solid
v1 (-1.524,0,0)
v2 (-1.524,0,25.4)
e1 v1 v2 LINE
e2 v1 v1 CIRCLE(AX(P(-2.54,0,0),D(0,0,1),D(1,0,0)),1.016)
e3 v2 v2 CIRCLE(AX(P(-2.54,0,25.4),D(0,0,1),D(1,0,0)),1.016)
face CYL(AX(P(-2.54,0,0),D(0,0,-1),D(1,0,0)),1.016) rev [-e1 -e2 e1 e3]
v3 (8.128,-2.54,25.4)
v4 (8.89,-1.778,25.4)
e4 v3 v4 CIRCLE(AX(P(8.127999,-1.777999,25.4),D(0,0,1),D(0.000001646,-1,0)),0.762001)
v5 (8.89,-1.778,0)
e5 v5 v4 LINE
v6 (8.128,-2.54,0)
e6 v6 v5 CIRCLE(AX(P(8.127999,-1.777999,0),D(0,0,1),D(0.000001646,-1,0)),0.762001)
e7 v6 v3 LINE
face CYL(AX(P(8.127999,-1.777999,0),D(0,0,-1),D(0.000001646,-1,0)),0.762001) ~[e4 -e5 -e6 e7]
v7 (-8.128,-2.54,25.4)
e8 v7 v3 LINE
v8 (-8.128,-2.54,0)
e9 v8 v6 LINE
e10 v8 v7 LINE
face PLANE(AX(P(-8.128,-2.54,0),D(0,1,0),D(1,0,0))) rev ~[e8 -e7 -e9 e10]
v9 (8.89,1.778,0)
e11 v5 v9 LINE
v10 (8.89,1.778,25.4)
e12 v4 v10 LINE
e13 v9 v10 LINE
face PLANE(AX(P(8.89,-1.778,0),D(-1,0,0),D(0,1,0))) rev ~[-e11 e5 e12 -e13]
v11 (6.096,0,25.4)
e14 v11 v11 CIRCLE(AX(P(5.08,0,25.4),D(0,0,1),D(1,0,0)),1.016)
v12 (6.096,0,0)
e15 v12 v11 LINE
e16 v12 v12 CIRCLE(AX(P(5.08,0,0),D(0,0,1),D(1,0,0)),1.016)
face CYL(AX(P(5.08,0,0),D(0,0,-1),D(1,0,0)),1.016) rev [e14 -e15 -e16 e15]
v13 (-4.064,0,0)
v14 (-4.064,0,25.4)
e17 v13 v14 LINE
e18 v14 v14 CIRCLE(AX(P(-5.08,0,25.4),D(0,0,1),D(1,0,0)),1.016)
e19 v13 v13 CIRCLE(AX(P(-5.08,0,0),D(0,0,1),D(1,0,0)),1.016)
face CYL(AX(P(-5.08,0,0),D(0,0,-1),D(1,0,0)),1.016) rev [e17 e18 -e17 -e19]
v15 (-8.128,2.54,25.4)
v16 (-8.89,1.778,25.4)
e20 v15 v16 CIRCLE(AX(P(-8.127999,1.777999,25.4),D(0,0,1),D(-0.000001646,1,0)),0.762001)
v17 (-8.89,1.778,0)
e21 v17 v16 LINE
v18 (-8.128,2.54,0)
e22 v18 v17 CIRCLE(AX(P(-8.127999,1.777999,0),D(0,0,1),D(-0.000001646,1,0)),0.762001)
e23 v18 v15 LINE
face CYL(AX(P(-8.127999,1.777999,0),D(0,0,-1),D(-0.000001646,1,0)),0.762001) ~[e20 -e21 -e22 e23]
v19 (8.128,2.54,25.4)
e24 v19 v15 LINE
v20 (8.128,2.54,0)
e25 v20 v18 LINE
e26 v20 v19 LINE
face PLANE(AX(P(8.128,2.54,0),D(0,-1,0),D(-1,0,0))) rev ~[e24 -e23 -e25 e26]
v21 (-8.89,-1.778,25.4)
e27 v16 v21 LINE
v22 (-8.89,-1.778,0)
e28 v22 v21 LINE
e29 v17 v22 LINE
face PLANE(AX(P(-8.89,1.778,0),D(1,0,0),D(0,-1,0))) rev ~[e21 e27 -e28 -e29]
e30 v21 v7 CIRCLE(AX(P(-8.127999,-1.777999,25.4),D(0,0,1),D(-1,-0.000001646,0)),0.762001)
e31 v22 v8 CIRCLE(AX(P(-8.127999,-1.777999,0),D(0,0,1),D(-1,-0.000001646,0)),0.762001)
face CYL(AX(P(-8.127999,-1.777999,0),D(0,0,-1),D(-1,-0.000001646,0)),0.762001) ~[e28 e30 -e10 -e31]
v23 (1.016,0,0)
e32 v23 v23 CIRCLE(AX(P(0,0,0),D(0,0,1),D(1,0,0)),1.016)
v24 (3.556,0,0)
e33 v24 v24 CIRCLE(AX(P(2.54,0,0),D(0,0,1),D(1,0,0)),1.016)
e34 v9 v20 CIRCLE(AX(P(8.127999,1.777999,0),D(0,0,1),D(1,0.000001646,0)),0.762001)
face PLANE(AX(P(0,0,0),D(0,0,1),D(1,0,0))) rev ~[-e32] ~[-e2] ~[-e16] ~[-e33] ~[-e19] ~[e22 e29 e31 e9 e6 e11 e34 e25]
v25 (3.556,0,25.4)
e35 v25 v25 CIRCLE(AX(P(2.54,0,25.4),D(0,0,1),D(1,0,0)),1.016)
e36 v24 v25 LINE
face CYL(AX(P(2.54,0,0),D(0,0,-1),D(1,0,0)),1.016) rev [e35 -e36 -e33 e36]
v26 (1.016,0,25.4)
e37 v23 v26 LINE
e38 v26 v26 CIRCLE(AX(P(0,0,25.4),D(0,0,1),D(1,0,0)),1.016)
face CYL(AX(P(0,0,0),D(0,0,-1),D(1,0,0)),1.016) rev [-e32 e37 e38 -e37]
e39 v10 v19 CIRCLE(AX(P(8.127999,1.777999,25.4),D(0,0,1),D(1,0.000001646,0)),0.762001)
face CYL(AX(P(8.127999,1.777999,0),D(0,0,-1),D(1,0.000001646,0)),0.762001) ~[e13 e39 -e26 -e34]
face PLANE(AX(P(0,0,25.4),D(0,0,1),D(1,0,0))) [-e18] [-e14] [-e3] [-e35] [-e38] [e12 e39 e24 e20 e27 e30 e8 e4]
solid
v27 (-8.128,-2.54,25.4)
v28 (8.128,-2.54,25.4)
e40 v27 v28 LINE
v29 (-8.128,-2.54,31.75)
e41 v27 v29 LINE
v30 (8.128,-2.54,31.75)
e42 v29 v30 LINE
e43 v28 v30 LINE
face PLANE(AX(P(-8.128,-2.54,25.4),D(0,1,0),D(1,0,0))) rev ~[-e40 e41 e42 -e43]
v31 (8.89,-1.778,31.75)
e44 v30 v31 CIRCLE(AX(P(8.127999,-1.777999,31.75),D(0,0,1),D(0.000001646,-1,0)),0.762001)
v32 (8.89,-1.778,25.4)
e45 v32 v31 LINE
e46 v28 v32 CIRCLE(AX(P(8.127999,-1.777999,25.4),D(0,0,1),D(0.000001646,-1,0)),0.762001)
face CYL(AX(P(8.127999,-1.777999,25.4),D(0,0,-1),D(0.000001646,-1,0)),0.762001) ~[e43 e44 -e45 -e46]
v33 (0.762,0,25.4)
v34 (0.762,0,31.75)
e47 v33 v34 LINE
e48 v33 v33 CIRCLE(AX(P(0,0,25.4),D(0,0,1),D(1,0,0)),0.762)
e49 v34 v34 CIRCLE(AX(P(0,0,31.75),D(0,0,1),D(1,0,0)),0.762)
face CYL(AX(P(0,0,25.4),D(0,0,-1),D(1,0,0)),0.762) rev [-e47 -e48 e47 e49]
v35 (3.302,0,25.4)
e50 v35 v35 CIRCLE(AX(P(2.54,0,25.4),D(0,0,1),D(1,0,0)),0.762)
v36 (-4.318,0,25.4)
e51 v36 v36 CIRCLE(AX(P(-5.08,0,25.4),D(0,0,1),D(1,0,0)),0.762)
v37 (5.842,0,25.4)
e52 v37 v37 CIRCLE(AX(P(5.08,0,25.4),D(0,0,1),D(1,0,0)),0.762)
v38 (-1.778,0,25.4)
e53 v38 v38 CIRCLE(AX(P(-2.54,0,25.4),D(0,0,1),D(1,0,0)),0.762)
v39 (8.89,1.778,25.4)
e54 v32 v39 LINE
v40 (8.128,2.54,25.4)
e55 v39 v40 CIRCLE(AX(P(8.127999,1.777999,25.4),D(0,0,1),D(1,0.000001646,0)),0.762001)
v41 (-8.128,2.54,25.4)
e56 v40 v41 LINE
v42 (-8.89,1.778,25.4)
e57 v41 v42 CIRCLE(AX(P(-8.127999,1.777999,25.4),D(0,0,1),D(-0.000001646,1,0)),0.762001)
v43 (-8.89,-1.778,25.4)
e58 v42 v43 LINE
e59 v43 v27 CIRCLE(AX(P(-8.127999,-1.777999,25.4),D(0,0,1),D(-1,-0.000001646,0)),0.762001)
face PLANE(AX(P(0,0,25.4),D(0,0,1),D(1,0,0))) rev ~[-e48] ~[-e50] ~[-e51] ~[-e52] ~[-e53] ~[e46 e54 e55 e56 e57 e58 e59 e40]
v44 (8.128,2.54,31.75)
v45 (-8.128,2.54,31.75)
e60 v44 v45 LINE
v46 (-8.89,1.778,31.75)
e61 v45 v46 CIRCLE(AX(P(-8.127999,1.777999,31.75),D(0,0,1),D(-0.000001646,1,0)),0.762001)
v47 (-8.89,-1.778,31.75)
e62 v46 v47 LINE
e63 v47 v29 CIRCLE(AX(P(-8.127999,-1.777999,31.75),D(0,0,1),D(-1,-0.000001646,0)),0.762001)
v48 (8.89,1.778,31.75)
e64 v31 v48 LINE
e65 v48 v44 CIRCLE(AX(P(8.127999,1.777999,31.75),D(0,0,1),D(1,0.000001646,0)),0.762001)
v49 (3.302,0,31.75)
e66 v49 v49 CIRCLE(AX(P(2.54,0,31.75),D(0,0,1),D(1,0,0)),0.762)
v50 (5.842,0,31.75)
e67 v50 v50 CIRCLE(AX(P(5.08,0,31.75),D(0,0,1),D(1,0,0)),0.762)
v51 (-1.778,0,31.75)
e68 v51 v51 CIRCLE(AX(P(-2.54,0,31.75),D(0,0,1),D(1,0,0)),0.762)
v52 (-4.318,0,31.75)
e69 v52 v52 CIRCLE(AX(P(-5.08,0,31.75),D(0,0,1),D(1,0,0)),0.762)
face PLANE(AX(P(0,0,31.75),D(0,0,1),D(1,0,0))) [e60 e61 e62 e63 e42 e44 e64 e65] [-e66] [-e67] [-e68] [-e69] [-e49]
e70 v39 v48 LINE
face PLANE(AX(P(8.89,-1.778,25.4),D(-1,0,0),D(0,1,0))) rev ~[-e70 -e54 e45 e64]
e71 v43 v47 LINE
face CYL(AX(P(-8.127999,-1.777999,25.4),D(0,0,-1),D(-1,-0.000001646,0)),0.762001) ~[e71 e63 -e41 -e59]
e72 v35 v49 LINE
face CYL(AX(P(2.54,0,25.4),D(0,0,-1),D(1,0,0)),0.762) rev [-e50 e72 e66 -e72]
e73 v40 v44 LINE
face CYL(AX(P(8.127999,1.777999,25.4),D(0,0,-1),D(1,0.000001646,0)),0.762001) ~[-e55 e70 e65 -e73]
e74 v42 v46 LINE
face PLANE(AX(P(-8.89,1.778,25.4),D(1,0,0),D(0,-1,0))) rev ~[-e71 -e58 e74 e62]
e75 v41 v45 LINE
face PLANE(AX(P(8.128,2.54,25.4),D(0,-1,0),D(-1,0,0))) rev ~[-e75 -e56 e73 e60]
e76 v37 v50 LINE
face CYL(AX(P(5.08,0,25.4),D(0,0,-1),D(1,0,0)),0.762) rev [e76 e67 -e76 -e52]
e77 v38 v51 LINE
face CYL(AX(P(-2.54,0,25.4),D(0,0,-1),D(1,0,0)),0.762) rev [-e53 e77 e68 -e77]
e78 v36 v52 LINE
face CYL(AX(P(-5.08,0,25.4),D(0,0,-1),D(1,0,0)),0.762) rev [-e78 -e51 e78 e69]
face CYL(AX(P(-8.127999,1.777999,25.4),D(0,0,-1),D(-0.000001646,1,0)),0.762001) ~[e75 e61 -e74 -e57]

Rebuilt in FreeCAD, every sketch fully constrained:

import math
import FreeCAD as App
import Part
import Sketcher
Q = App.Units.Quantity

doc = App.newDocument("Part")
body = doc.addObject("PartDesign::Body", "Body")

# Sketch on XY plane
sketch1 = body.newObject("Sketcher::SketchObject", "Sketch")
sketch1.AttachmentSupport = (doc.getObject("XY_Plane"), [""])
sketch1.MapMode = "FlatFace"
sketch1.addGeometry(Part.LineSegment(App.Vector(-8.1, -2.5, 0), App.Vector(8.1, -2.5, 0)), False)
sketch1.addGeometry(Part.ArcOfCircle(Part.Circle(App.Vector(8.1, -1.8, 0), App.Vector(0, 0, 1), 0.8), math.radians(-90), math.radians(0)), False)
sketch1.addGeometry(Part.LineSegment(App.Vector(8.9, -1.8, 0), App.Vector(8.9, 1.8, 0)), False)
sketch1.addGeometry(Part.ArcOfCircle(Part.Circle(App.Vector(8.1, 1.8, 0), App.Vector(0, 0, 1), 0.8), math.radians(0), math.radians(90)), False)
sketch1.addGeometry(Part.LineSegment(App.Vector(8.1, 2.5, 0), App.Vector(-8.1, 2.5, 0)), False)
sketch1.addGeometry(Part.ArcOfCircle(Part.Circle(App.Vector(-8.1, 1.8, 0), App.Vector(0, 0, 1), 0.8), math.radians(90), math.radians(180)), False)
sketch1.addGeometry(Part.LineSegment(App.Vector(-8.9, 1.8, 0), App.Vector(-8.9, -1.8, 0)), False)
sketch1.addGeometry(Part.ArcOfCircle(Part.Circle(App.Vector(-8.1, -1.8, 0), App.Vector(0, 0, 1), 0.8), math.radians(-180), math.radians(-90)), False)
sketch1.addGeometry(Part.Circle(App.Vector(-5.1, 0, 0), App.Vector(0, 0, 1), 1), False)
sketch1.addGeometry(Part.Circle(App.Vector(-2.5, 0, 0), App.Vector(0, 0, 1), 1), False)
sketch1.addGeometry(Part.Circle(App.Vector(0, 0, 0), App.Vector(0, 0, 1), 1), False)
sketch1.addGeometry(Part.Circle(App.Vector(2.5, 0, 0), App.Vector(0, 0, 1), 1), False)
sketch1.addGeometry(Part.Circle(App.Vector(5.1, 0, 0), App.Vector(0, 0, 1), 1), False)
sketch1.addConstraint(Sketcher.Constraint("Tangent", 0, 2, 1, 1))
sketch1.addConstraint(Sketcher.Constraint("Tangent", 1, 2, 2, 1))
sketch1.addConstraint(Sketcher.Constraint("Tangent", 2, 2, 3, 1))
sketch1.addConstraint(Sketcher.Constraint("Tangent", 3, 2, 4, 1))
sketch1.addConstraint(Sketcher.Constraint("Tangent", 4, 2, 5, 1))
sketch1.addConstraint(Sketcher.Constraint("Tangent", 5, 2, 6, 1))
sketch1.addConstraint(Sketcher.Constraint("Tangent", 6, 2, 7, 1))
sketch1.addConstraint(Sketcher.Constraint("Tangent", 7, 2, 0, 1))
sketch1.addConstraint(Sketcher.Constraint("Horizontal", 0))
sketch1.addConstraint(Sketcher.Constraint("Vertical", 2))
sketch1.addConstraint(Sketcher.Constraint("Horizontal", 4))
sketch1.addConstraint(Sketcher.Constraint("Vertical", 6))
sketch1.addConstraint(Sketcher.Constraint("Coincident", 10, 3, -1, 1))
sketch1.addConstraint(Sketcher.Constraint("Equal", 1, 3))
sketch1.addConstraint(Sketcher.Constraint("Equal", 3, 5))
sketch1.addConstraint(Sketcher.Constraint("Equal", 5, 7))
sketch1.addConstraint(Sketcher.Constraint("Equal", 8, 9))
sketch1.addConstraint(Sketcher.Constraint("Equal", 9, 10))
sketch1.addConstraint(Sketcher.Constraint("Equal", 10, 11))
sketch1.addConstraint(Sketcher.Constraint("Equal", 11, 12))
sketch1.addConstraint(Sketcher.Constraint("Symmetric", 1, 3, 5, 3, -1, 1))
sketch1.addConstraint(Sketcher.Constraint("Symmetric", 9, 3, 11, 3, -1, 1))
sketch1.addConstraint(Sketcher.Constraint("Symmetric", 8, 3, 12, 3, -1, 1))
sketch1.addConstraint(Sketcher.Constraint("PointOnObject", 8, 3, -1))
sketch1.addConstraint(Sketcher.Constraint("PointOnObject", 9, 3, -1))
sketch1.addConstraint(Sketcher.Constraint("Diameter", 8, Q("0.08 in")))
sketch1.addConstraint(Sketcher.Constraint("Radius", 1, Q("0.03 in")))
sketch1.addConstraint(Sketcher.Constraint("DistanceX", 0, 1, 0, 2, Q("0.64 in")))
sketch1.addConstraint(Sketcher.Constraint("DistanceY", 2, 1, 2, 2, Q("0.14 in")))
sketch1.addConstraint(Sketcher.Constraint("DistanceX", 8, 3, -1, 1, Q("0.2 in")))
sketch1.addConstraint(Sketcher.Constraint("DistanceX", 9, 3, -1, 1, Q("0.1 in")))
pad1 = body.newObject("PartDesign::Pad", "Pad")
pad1.Profile = sketch1
pad1.Length = Q("1 in")
body2 = doc.addObject("PartDesign::Body", "Body001")

# Sketch on XY plane
sketch2 = body2.newObject("Sketcher::SketchObject", "Sketch001")
sketch2.AttachmentSupport = (doc.getObject("XY_Plane001"), [""])
sketch2.MapMode = "FlatFace"
sketch2.AttachmentOffset = App.Placement(App.Vector(0, 0, 1 * 25.4), App.Rotation())
sketch2.addGeometry(Part.ArcOfCircle(Part.Circle(App.Vector(8.1, 1.8, 0), App.Vector(0, 0, 1), 0.8), math.radians(0), math.radians(90)), False)
sketch2.addGeometry(Part.LineSegment(App.Vector(8.1, 2.5, 0), App.Vector(-8.1, 2.5, 0)), False)
sketch2.addGeometry(Part.ArcOfCircle(Part.Circle(App.Vector(-8.1, 1.8, 0), App.Vector(0, 0, 1), 0.8), math.radians(90), math.radians(180)), False)
sketch2.addGeometry(Part.LineSegment(App.Vector(-8.9, 1.8, 0), App.Vector(-8.9, -1.8, 0)), False)
sketch2.addGeometry(Part.ArcOfCircle(Part.Circle(App.Vector(-8.1, -1.8, 0), App.Vector(0, 0, 1), 0.8), math.radians(-180), math.radians(-90)), False)
sketch2.addGeometry(Part.LineSegment(App.Vector(-8.1, -2.5, 0), App.Vector(8.1, -2.5, 0)), False)
sketch2.addGeometry(Part.ArcOfCircle(Part.Circle(App.Vector(8.1, -1.8, 0), App.Vector(0, 0, 1), 0.8), math.radians(-90), math.radians(0)), False)
sketch2.addGeometry(Part.LineSegment(App.Vector(8.9, -1.8, 0), App.Vector(8.9, 1.8, 0)), False)
sketch2.addGeometry(Part.Circle(App.Vector(-5.1, 0, 0), App.Vector(0, 0, 1), 0.8), False)
sketch2.addGeometry(Part.Circle(App.Vector(-2.5, 0, 0), App.Vector(0, 0, 1), 0.8), False)
sketch2.addGeometry(Part.Circle(App.Vector(0, 0, 0), App.Vector(0, 0, 1), 0.8), False)
sketch2.addGeometry(Part.Circle(App.Vector(2.5, 0, 0), App.Vector(0, 0, 1), 0.8), False)
sketch2.addGeometry(Part.Circle(App.Vector(5.1, 0, 0), App.Vector(0, 0, 1), 0.8), False)
sketch2.addConstraint(Sketcher.Constraint("Tangent", 0, 2, 1, 1))
sketch2.addConstraint(Sketcher.Constraint("Tangent", 1, 2, 2, 1))
sketch2.addConstraint(Sketcher.Constraint("Tangent", 2, 2, 3, 1))
sketch2.addConstraint(Sketcher.Constraint("Tangent", 3, 2, 4, 1))
sketch2.addConstraint(Sketcher.Constraint("Tangent", 4, 2, 5, 1))
sketch2.addConstraint(Sketcher.Constraint("Tangent", 5, 2, 6, 1))
sketch2.addConstraint(Sketcher.Constraint("Tangent", 6, 2, 7, 1))
sketch2.addConstraint(Sketcher.Constraint("Tangent", 7, 2, 0, 1))
sketch2.addConstraint(Sketcher.Constraint("Horizontal", 1))
sketch2.addConstraint(Sketcher.Constraint("Vertical", 3))
sketch2.addConstraint(Sketcher.Constraint("Horizontal", 5))
sketch2.addConstraint(Sketcher.Constraint("Vertical", 7))
sketch2.addConstraint(Sketcher.Constraint("Coincident", 10, 3, -1, 1))
sketch2.addConstraint(Sketcher.Constraint("Equal", 0, 2))
sketch2.addConstraint(Sketcher.Constraint("Equal", 2, 4))
sketch2.addConstraint(Sketcher.Constraint("Equal", 4, 6))
sketch2.addConstraint(Sketcher.Constraint("Equal", 6, 8))
sketch2.addConstraint(Sketcher.Constraint("Equal", 8, 9))
sketch2.addConstraint(Sketcher.Constraint("Equal", 9, 10))
sketch2.addConstraint(Sketcher.Constraint("Equal", 10, 11))
sketch2.addConstraint(Sketcher.Constraint("Equal", 11, 12))
sketch2.addConstraint(Sketcher.Constraint("Symmetric", 0, 3, 4, 3, -1, 1))
sketch2.addConstraint(Sketcher.Constraint("Symmetric", 9, 3, 11, 3, -1, 1))
sketch2.addConstraint(Sketcher.Constraint("Symmetric", 8, 3, 12, 3, -1, 1))
sketch2.addConstraint(Sketcher.Constraint("PointOnObject", 8, 3, -1))
sketch2.addConstraint(Sketcher.Constraint("PointOnObject", 9, 3, -1))
sketch2.addConstraint(Sketcher.Constraint("Diameter", 8, Q("0.06 in")))
sketch2.addConstraint(Sketcher.Constraint("DistanceX", 1, 2, 1, 1, Q("0.64 in")))
sketch2.addConstraint(Sketcher.Constraint("DistanceY", 3, 2, 3, 1, Q("0.14 in")))
sketch2.addConstraint(Sketcher.Constraint("DistanceX", 8, 3, -1, 1, Q("0.2 in")))
sketch2.addConstraint(Sketcher.Constraint("DistanceX", 9, 3, -1, 1, Q("0.1 in")))
pad2 = body2.newObject("PartDesign::Pad", "Pad001")
pad2.Profile = sketch2
pad2.Length = Q("0.25 in")

doc.recompute()
